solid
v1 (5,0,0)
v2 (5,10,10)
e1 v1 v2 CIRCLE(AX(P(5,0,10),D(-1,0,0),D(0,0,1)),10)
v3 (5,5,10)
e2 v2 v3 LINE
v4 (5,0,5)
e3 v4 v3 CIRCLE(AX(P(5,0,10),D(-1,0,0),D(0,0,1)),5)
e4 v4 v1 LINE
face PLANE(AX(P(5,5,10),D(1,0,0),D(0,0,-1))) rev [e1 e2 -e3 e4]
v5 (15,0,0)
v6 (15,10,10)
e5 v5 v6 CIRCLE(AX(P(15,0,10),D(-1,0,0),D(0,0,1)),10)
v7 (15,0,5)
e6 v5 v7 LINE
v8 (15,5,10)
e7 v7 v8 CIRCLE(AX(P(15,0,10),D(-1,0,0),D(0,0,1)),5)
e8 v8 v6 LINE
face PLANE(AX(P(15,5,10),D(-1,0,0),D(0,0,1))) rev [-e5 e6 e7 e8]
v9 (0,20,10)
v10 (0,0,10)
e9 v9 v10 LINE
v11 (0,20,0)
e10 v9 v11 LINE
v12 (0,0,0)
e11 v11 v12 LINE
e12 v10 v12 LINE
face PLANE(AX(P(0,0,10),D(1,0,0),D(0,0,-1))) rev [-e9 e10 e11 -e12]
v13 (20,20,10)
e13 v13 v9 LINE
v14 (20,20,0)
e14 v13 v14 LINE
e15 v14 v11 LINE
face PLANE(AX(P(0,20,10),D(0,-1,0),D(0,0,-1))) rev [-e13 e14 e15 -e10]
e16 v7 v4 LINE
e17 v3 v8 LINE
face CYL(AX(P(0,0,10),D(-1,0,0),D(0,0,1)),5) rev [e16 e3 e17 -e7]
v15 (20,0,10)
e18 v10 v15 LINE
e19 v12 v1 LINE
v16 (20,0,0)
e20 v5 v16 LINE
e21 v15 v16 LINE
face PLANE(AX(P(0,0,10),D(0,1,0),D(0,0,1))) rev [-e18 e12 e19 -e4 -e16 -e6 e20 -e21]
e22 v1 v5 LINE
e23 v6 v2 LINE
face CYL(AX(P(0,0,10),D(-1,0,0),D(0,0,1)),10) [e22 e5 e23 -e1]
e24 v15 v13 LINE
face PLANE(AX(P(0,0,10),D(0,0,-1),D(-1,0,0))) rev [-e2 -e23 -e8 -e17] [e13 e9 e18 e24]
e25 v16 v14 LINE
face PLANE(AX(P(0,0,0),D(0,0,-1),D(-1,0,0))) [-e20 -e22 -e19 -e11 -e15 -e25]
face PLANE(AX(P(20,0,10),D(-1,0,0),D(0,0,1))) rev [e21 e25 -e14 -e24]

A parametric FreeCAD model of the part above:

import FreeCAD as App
import Part
import Sketcher
from FreeCAD import Vector
Q = App.Units.Quantity


def add_polygon(sketch, points):
    """Adds a closed chain of lines whose ends are joined by coincident constraints."""
    first, n = sketch.GeometryCount, len(points)
    for a, b in zip(points, points[1:] + points[:1]):
        sketch.addGeometry(Part.LineSegment(App.Vector(*a, 0), App.Vector(*b, 0)), False)
    for i in range(n):
        sketch.addConstraint(Sketcher.Constraint("Coincident", first + i, 2, first + (i + 1) % n, 1))

doc = App.newDocument("Part")
body = doc.addObject("PartDesign::Body", "Body")

# Sketch on XY plane
sketch1 = body.newObject("Sketcher::SketchObject", "Sketch")
sketch1.AttachmentSupport = (doc.getObject("XY_Plane"), [""])
sketch1.MapMode = "FlatFace"
add_polygon(sketch1, [(0, 20), (0, 0), (20, 0), (20, 20)])  # lines 0-3
sketch1.addConstraint(Sketcher.Constraint("Vertical", 0))
sketch1.addConstraint(Sketcher.Constraint("Horizontal", 1))
sketch1.addConstraint(Sketcher.Constraint("Vertical", 2))
sketch1.addConstraint(Sketcher.Constraint("Horizontal", 3))
sketch1.addConstraint(Sketcher.Constraint("Coincident", 0, 2, -1, 1))
sketch1.addConstraint(Sketcher.Constraint("Equal", 3, 0))
sketch1.addConstraint(Sketcher.Constraint("DistanceX", 1, 1, 1, 2, Q("20 mm")))
pad1 = body.newObject("PartDesign::Pad", "Pad")
pad1.Profile = sketch1
pad1.Length = 10

# Sketch on XY plane
sketch2 = body.newObject("Sketcher::SketchObject", "Sketch001")
sketch2.AttachmentSupport = (doc.getObject("XY_Plane"), [""])
sketch2.MapMode = "FlatFace"
sketch2.AttachmentOffset = App.Placement(Vector(0, 0, 10), App.Rotation())
add_polygon(sketch2, [(5, 10), (5, 5), (15, 5), (15, 10)])  # lines 0-3
sketch2.addConstraint(Sketcher.Constraint("Vertical", 0))
sketch2.addConstraint(Sketcher.Constraint("Horizontal", 1))
sketch2.addConstraint(Sketcher.Constraint("Vertical", 2))
sketch2.addConstraint(Sketcher.Constraint("Horizontal", 3))
sketch2.addConstraint(Sketcher.Constraint("DistanceX", 1, 1, 1, 2, Q("10 mm")))
sketch2.addConstraint(Sketcher.Constraint("DistanceY", 0, 2, 0, 1, Q("5 mm")))
sketch2.addConstraint(Sketcher.Constraint("DistanceX", -1, 1, 0, 2, Q("5 mm")))
sketch2.addConstraint(Sketcher.Constraint("DistanceY", -1, 1, 0, 2, Q("5 mm")))
revolution = body.newObject("PartDesign::Revolution", "Revolution")
revolution.Profile = sketch2
revolution.ReferenceAxis = (sketch2, ["H_Axis"])
revolution.Angle = 360

doc.recompute()
